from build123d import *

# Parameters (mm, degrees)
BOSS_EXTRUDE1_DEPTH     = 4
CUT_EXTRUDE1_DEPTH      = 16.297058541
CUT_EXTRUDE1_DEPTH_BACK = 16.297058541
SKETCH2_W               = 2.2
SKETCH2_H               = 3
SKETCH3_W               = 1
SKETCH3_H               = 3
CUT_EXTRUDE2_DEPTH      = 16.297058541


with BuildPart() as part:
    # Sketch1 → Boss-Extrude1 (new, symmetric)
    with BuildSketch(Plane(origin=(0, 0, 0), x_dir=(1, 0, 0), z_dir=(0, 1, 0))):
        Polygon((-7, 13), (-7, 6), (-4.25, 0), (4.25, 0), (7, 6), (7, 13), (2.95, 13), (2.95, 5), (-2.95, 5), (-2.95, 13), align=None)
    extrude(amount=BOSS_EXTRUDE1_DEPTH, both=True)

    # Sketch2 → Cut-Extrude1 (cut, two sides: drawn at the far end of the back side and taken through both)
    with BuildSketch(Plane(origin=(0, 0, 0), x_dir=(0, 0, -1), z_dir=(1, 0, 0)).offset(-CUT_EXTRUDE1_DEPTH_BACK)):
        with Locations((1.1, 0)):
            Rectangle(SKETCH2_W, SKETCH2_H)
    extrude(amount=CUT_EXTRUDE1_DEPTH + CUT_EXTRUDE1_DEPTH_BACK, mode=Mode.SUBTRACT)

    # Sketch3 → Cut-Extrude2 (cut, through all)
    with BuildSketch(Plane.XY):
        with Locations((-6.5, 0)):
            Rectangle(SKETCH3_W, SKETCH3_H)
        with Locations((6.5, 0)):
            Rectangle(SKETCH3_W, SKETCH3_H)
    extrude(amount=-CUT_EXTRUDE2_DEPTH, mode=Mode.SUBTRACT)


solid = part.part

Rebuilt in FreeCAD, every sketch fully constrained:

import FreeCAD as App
import Part
import Sketcher
Q = App.Units.Quantity

doc = App.newDocument("Part")
body = doc.addObject("PartDesign::Body", "Body")

sketch1 = body.newObject("Sketcher::SketchObject", "Sketch")
sketch1.AttachmentSupport = (doc.getObject("XZ_Plane"), [""])
sketch1.MapMode = "FlatFace"
sketch1.addGeometry([
    Part.LineSegment(App.Vector(-7, -13, 0), App.Vector(-7, -6, 0)),
    Part.LineSegment(App.Vector(-7, -6, 0), App.Vector(-4.25, 0, 0)),
    Part.LineSegment(App.Vector(-4.25, 0, 0), App.Vector(4.25, 0, 0)),
    Part.LineSegment(App.Vector(4.25, 0, 0), App.Vector(7, -6, 0)),
    Part.LineSegment(App.Vector(7, -6, 0), App.Vector(7, -13, 0)),
    Part.LineSegment(App.Vector(7, -13, 0), App.Vector(2.95, -13, 0)),
    Part.LineSegment(App.Vector(2.95, -13, 0), App.Vector(2.95, -5, 0)),
    Part.LineSegment(App.Vector(2.95, -5, 0), App.Vector(-2.95, -5, 0)),
    Part.LineSegment(App.Vector(-2.95, -5, 0), App.Vector(-2.95, -13, 0)),
    Part.LineSegment(App.Vector(-2.95, -13, 0), App.Vector(-7, -13, 0)),
], False)
sketch1.addConstraint([
    Sketcher.Constraint("Coincident", 0, 2, 1, 1),
    Sketcher.Constraint("Coincident", 1, 2, 2, 1),
    Sketcher.Constraint("Coincident", 2, 2, 3, 1),
    Sketcher.Constraint("Coincident", 3, 2, 4, 1),
    Sketcher.Constraint("Coincident", 4, 2, 5, 1),
    Sketcher.Constraint("Coincident", 5, 2, 6, 1),
    Sketcher.Constraint("Coincident", 6, 2, 7, 1),
    Sketcher.Constraint("Coincident", 7, 2, 8, 1),
    Sketcher.Constraint("Coincident", 8, 2, 9, 1),
    Sketcher.Constraint("Coincident", 9, 2, 0, 1),
    Sketcher.Constraint("Vertical", 0),
    Sketcher.Constraint("Horizontal", 2),
    Sketcher.Constraint("Vertical", 4),
    Sketcher.Constraint("Horizontal", 5),
    Sketcher.Constraint("Vertical", 6),
    Sketcher.Constraint("Horizontal", 7),
    Sketcher.Constraint("Vertical", 8),
    Sketcher.Constraint("Horizontal", 9),
    Sketcher.Constraint("Symmetric", 1, 2, 2, 2, -1, 1),
    Sketcher.Constraint("Symmetric", 0, 2, 3, 2, -2),
    Sketcher.Constraint("Symmetric", 5, 2, 8, 2, -2),
    Sketcher.Constraint("DistanceY", 0, 1, 0, 2, Q("7 mm")),
    Sketcher.Constraint("DistanceY", 6, 1, 6, 2, Q("8 mm")),
    Sketcher.Constraint("DistanceX", 2, 1, 2, 2, Q("8.5 mm")),
    Sketcher.Constraint("DistanceX", 7, 2, 7, 1, Q("5.9 mm")),
    Sketcher.Constraint("DistanceX", 0, 2, -1, 1, Q("7 mm")),
    Sketcher.Constraint("DistanceY", 0, 2, -1, 1, Q("6 mm")),
])
pad1 = body.newObject("PartDesign::Pad", "Pad")
pad1.Profile = sketch1
pad1.Length = 8
pad1.Midplane = True

sketch2 = body.newObject("Sketcher::SketchObject", "Sketch001")
sketch2.AttachmentSupport = (doc.getObject("YZ_Plane"), [""])
sketch2.MapMode = "FlatFace"
sketch2.addGeometry([
    Part.LineSegment(App.Vector(1.5, 0, 0), App.Vector(-1.5, 0, 0)),
    Part.LineSegment(App.Vector(-1.5, 0, 0), App.Vector(-1.5, -2.2, 0)),
    Part.LineSegment(App.Vector(-1.5, -2.2, 0), App.Vector(1.5, -2.2, 0)),
    Part.LineSegment(App.Vector(1.5, -2.2, 0), App.Vector(1.5, 0, 0)),
], False)
sketch2.addConstraint([
    Sketcher.Constraint("Coincident", 0, 2, 1, 1),
    Sketcher.Constraint("Coincident", 1, 2, 2, 1),
    Sketcher.Constraint("Coincident", 2, 2, 3, 1),
    Sketcher.Constraint("Coincident", 3, 2, 0, 1),
    Sketcher.Constraint("Horizontal", 0),
    Sketcher.Constraint("Vertical", 1),
    Sketcher.Constraint("Horizontal", 2),
    Sketcher.Constraint("Vertical", 3),
    Sketcher.Constraint("Symmetric", 0, 2, 3, 2, -1, 1),
    Sketcher.Constraint("DistanceX", 0, 2, 0, 1, Q("3 mm")),
    Sketcher.Constraint("DistanceY", 1, 2, 1, 1, Q("2.2 mm")),
])
pocket1 = body.newObject("PartDesign::Pocket", "Pocket")
pocket1.Profile = sketch2
pocket1.Type = "ThroughAll"
pocket1.Midplane = True

sketch3 = body.newObject("Sketcher::SketchObject", "Sketch002")
sketch3.AttachmentSupport = (doc.getObject("XY_Plane"), [""])
sketch3.MapMode = "FlatFace"
sketch3.addGeometry([
    Part.LineSegment(App.Vector(-7, 1.5, 0), App.Vector(-7, -1.5, 0)),
    Part.LineSegment(App.Vector(-7, -1.5, 0), App.Vector(-6, -1.5, 0)),
    Part.LineSegment(App.Vector(-6, -1.5, 0), App.Vector(-6, 1.5, 0)),
    Part.LineSegment(App.Vector(-6, 1.5, 0), App.Vector(-7, 1.5, 0)),
    Part.LineSegment(App.Vector(6, 1.5, 0), App.Vector(6, -1.5, 0)),
    Part.LineSegment(App.Vector(6, -1.5, 0), App.Vector(7, -1.5, 0)),
    Part.LineSegment(App.Vector(7, -1.5, 0), App.Vector(7, 1.5, 0)),
    Part.LineSegment(App.Vector(7, 1.5, 0), App.Vector(6, 1.5, 0)),
], False)
sketch3.addConstraint([
    Sketcher.Constraint("Coincident", 0, 2, 1, 1),
    Sketcher.Constraint("Coincident", 1, 2, 2, 1),
    Sketcher.Constraint("Coincident", 2, 2, 3, 1),
    Sketcher.Constraint("Coincident", 3, 2, 0, 1),
    Sketcher.Constraint("Coincident", 4, 2, 5, 1),
    Sketcher.Constraint("Coincident", 5, 2, 6, 1),
    Sketcher.Constraint("Coincident", 6, 2, 7, 1),
    Sketcher.Constraint("Coincident", 7, 2, 4, 1),
    Sketcher.Constraint("Vertical", 0),
    Sketcher.Constraint("Horizontal", 1),
    Sketcher.Constraint("Vertical", 2),
    Sketcher.Constraint("Horizontal", 3),
    Sketcher.Constraint("Vertical", 4),
    Sketcher.Constraint("Horizontal", 5),
    Sketcher.Constraint("Vertical", 6),
    Sketcher.Constraint("Horizontal", 7),
    Sketcher.Constraint("Symmetric", 2, 2, 4, 2, -1, 1),
    Sketcher.Constraint("Symmetric", 0, 2, 6, 2, -1, 1),
    Sketcher.Constraint("Horizontal", 1, 2, 4, 2),
    Sketcher.Constraint("DistanceX", 1, 1, 1, 2, Q("1 mm")),
    Sketcher.Constraint("DistanceY", 0, 2, 0, 1, Q("3 mm")),
    Sketcher.Constraint("DistanceX", 0, 2, -1, 1, Q("7 mm")),
])
pocket2 = body.newObject("PartDesign::Pocket", "Pocket001")
pocket2.Profile = sketch3
pocket2.Type = "ThroughAll"

doc.recompute()
